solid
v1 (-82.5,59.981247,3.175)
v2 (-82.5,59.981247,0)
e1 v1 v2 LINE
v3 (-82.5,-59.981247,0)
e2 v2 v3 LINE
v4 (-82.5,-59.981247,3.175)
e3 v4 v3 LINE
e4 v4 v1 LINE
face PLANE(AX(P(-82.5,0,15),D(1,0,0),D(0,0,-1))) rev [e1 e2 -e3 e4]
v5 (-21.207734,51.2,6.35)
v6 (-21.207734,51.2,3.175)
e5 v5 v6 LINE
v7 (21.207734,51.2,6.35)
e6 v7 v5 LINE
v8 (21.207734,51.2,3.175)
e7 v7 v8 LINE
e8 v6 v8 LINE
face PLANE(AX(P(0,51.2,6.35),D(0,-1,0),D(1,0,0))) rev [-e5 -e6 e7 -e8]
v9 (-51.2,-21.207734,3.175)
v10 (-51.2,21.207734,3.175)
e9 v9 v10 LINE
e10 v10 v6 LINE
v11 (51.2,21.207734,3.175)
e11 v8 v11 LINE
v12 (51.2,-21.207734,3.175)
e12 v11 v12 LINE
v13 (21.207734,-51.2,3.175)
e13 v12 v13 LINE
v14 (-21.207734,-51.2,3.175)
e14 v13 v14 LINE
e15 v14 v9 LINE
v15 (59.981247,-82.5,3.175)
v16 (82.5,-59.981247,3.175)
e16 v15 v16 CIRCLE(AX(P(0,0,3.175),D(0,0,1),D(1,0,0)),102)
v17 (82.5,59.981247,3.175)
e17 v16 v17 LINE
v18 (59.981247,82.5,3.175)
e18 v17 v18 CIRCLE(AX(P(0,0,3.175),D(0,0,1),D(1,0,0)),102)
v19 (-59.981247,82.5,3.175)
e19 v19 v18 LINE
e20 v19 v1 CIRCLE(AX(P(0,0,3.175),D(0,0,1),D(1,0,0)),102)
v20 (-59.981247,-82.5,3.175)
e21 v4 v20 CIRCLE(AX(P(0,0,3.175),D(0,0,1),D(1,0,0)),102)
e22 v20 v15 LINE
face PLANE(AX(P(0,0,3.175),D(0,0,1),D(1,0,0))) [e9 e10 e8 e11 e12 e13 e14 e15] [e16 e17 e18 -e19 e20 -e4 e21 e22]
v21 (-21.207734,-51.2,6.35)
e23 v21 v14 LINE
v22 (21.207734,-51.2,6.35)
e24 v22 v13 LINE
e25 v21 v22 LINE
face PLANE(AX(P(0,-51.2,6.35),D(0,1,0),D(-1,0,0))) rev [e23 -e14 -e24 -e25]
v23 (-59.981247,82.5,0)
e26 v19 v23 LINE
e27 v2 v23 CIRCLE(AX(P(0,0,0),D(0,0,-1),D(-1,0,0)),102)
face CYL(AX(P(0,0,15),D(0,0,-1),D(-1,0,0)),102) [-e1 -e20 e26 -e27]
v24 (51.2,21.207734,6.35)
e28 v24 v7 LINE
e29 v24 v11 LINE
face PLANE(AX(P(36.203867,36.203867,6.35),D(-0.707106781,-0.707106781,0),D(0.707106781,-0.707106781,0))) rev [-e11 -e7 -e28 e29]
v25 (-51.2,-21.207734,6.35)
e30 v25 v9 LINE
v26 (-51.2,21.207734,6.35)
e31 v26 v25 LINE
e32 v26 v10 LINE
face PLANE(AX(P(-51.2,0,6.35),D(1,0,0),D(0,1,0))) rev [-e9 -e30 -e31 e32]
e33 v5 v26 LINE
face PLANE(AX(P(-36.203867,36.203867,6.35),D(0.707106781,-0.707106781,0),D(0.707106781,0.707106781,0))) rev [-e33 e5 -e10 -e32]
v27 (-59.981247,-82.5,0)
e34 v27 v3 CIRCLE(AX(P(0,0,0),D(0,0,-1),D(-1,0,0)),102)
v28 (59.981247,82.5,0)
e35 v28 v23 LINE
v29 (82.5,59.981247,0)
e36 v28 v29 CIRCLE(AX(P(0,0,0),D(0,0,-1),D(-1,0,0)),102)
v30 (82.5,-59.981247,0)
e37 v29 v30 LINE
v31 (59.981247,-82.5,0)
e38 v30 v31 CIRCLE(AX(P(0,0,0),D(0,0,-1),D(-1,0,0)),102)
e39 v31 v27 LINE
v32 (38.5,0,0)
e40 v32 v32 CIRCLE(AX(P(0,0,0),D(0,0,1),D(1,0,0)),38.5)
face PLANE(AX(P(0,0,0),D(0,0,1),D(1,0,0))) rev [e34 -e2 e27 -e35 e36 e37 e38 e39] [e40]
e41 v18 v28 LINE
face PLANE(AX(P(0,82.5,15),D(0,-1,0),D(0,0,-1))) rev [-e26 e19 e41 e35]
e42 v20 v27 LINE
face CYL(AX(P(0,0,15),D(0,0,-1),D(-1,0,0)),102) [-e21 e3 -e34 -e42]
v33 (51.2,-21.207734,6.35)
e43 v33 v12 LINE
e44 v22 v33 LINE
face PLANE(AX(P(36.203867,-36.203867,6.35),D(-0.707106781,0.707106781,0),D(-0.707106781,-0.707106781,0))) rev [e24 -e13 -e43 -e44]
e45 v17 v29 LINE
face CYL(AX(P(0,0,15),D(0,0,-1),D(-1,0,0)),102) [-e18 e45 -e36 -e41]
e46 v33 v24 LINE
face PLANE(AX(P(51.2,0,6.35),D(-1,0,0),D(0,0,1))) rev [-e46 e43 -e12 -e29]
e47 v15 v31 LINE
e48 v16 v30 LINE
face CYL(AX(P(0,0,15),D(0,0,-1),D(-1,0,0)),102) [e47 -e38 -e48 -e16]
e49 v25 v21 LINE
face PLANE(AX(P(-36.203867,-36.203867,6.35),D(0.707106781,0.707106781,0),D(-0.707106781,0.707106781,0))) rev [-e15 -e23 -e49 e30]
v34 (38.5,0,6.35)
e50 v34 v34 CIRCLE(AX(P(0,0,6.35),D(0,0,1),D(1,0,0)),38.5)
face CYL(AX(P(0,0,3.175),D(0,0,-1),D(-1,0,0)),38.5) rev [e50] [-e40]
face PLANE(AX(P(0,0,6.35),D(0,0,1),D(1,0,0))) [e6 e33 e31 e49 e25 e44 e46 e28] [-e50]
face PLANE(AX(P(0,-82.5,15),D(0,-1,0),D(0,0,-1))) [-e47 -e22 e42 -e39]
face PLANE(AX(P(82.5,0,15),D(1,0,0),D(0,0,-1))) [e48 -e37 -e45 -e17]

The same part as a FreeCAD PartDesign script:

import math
import FreeCAD as App
import Part
import Sketcher

doc = App.newDocument("Part")
body = doc.addObject("PartDesign::Body", "Body")

sketch1 = body.newObject("Sketcher::SketchObject", "Sketch")
sketch1.AttachmentSupport = (doc.getObject("XY_Plane"), [""])
sketch1.MapMode = "FlatFace"
sketch1.addGeometry(Part.LineSegment(App.Vector(-102, 102, 0), App.Vector(-102, -102, 0)), False)
sketch1.addGeometry(Part.LineSegment(App.Vector(-102, -102, 0), App.Vector(102, -102, 0)), False)
sketch1.addGeometry(Part.LineSegment(App.Vector(102, -102, 0), App.Vector(102, 102, 0)), False)
sketch1.addGeometry(Part.LineSegment(App.Vector(102, 102, 0), App.Vector(-102, 102, 0)), False)
sketch1.addGeometry(Part.LineSegment(App.Vector(21, 51, 0), App.Vector(51, 21, 0)), False)
sketch1.addGeometry(Part.LineSegment(App.Vector(51, 21, 0), App.Vector(51, -21, 0)), False)
sketch1.addGeometry(Part.LineSegment(App.Vector(51, -21, 0), App.Vector(21, -51, 0)), False)
sketch1.addGeometry(Part.LineSegment(App.Vector(21, -51, 0), App.Vector(-21, -51, 0)), False)
sketch1.addGeometry(Part.LineSegment(App.Vector(-21, -51, 0), App.Vector(-51, -21, 0)), False)
sketch1.addGeometry(Part.LineSegment(App.Vector(-51, -21, 0), App.Vector(-51, 21, 0)), False)
sketch1.addGeometry(Part.LineSegment(App.Vector(-51, 21, 0), App.Vector(-21, 51, 0)), False)
sketch1.addGeometry(Part.LineSegment(App.Vector(-21, 51, 0), App.Vector(21, 51, 0)), False)
sketch1.addConstraint(Sketcher.Constraint("Coincident", 0, 2, 1, 1))
sketch1.addConstraint(Sketcher.Constraint("Coincident", 1, 2, 2, 1))
sketch1.addConstraint(Sketcher.Constraint("Coincident", 2, 2, 3, 1))
sketch1.addConstraint(Sketcher.Constraint("Coincident", 3, 2, 0, 1))
sketch1.addConstraint(Sketcher.Constraint("Coincident", 4, 2, 5, 1))
sketch1.addConstraint(Sketcher.Constraint("Coincident", 5, 2, 6, 1))
sketch1.addConstraint(Sketcher.Constraint("Coincident", 6, 2, 7, 1))
sketch1.addConstraint(Sketcher.Constraint("Coincident", 7, 2, 8, 1))
sketch1.addConstraint(Sketcher.Constraint("Coincident", 8, 2, 9, 1))
sketch1.addConstraint(Sketcher.Constraint("Coincident", 9, 2, 10, 1))
sketch1.addConstraint(Sketcher.Constraint("Coincident", 10, 2, 11, 1))
sketch1.addConstraint(Sketcher.Constraint("Coincident", 11, 2, 4, 1))
sketch1.addConstraint(Sketcher.Constraint("Vertical", 0))
sketch1.addConstraint(Sketcher.Constraint("Horizontal", 1))
sketch1.addConstraint(Sketcher.Constraint("Vertical", 2))
sketch1.addConstraint(Sketcher.Constraint("Horizontal", 3))
sketch1.addConstraint(Sketcher.Constraint("Vertical", 5))
sketch1.addConstraint(Sketcher.Constraint("Horizontal", 7))
sketch1.addConstraint(Sketcher.Constraint("Vertical", 9))
sketch1.addConstraint(Sketcher.Constraint("Horizontal", 11))
sketch1.addConstraint(Sketcher.Constraint("Symmetric", 0, 2, 2, 2, -1, 1))
sketch1.addConstraint(Sketcher.Constraint("Symmetric", 4, 2, 8, 2, -1, 1))
sketch1.addConstraint(Sketcher.Constraint("Symmetric", 6, 2, 10, 2, -1, 1))
sketch1.addConstraint(Sketcher.Constraint("Perpendicular", 4, 6))
sketch1.addConstraint(Sketcher.Constraint("Perpendicular", 6, 8))
sketch1.addConstraint(Sketcher.Constraint("Perpendicular", 8, 10))
sketch1.addConstraint(Sketcher.Constraint("Horizontal", 5, 2, 8, 2))
sketch1.addConstraint(Sketcher.Constraint("Vertical", 7, 2, 10, 2))
sketch1.addConstraint(Sketcher.Constraint("Equal", 3, 0))
sketch1.addConstraint(Sketcher.Constraint("Equal", 11, 5))
sketch1.addConstraint(Sketcher.Constraint("DistanceX", -1, 1, 4, 2, 51.2))
sketch1.addConstraint(Sketcher.Constraint("DistanceX", 1, 1, 1, 2, 203.94771))
sketch1.addConstraint(Sketcher.Constraint("DistanceX", 7, 2, 7, 1, 42.415469))
pad1 = body.newObject("PartDesign::Pad", "Pad")
pad1.Profile = sketch1
pad1.Length = 3.175

sketch2 = body.newObject("Sketcher::SketchObject", "Sketch001")
sketch2.AttachmentSupport = (doc.getObject("XY_Plane"), [""])
sketch2.MapMode = "FlatFace"
sketch2.addGeometry(Part.LineSegment(App.Vector(51, -21, 0), App.Vector(51, 21, 0)), False)
sketch2.addGeometry(Part.LineSegment(App.Vector(51, 21, 0), App.Vector(21, 51, 0)), False)
sketch2.addGeometry(Part.LineSegment(App.Vector(21, 51, 0), App.Vector(-21, 51, 0)), False)
sketch2.addGeometry(Part.LineSegment(App.Vector(-21, 51, 0), App.Vector(-51, 21, 0)), False)
sketch2.addGeometry(Part.LineSegment(App.Vector(-51, 21, 0), App.Vector(-51, -21, 0)), False)
sketch2.addGeometry(Part.LineSegment(App.Vector(-51, -21, 0), App.Vector(-21, -51, 0)), False)
sketch2.addGeometry(Part.LineSegment(App.Vector(-21, -51, 0), App.Vector(21, -51, 0)), False)
sketch2.addGeometry(Part.LineSegment(App.Vector(21, -51, 0), App.Vector(51, -21, 0)), False)
sketch2.addGeometry(Part.Circle(App.Vector(0, 0, 0), App.Vector(0, 0, 1), 38), False)
sketch2.addConstraint(Sketcher.Constraint("Coincident", 0, 2, 1, 1))
sketch2.addConstraint(Sketcher.Constraint("Coincident", 1, 2, 2, 1))
sketch2.addConstraint(Sketcher.Constraint("Coincident", 2, 2, 3, 1))
sketch2.addConstraint(Sketcher.Constraint("Coincident", 3, 2, 4, 1))
sketch2.addConstraint(Sketcher.Constraint("Coincident", 4, 2, 5, 1))
sketch2.addConstraint(Sketcher.Constraint("Coincident", 5, 2, 6, 1))
sketch2.addConstraint(Sketcher.Constraint("Coincident", 6, 2, 7, 1))
sketch2.addConstraint(Sketcher.Constraint("Coincident", 7, 2, 0, 1))
sketch2.addConstraint(Sketcher.Constraint("Vertical", 0))
sketch2.addConstraint(Sketcher.Constraint("Horizontal", 2))
sketch2.addConstraint(Sketcher.Constraint("Vertical", 4))
sketch2.addConstraint(Sketcher.Constraint("Horizontal", 6))
sketch2.addConstraint(Sketcher.Constraint("Coincident", 8, 3, -1, 1))
sketch2.addConstraint(Sketcher.Constraint("Symmetric", 0, 2, 4, 2, -1, 1))
sketch2.addConstraint(Sketcher.Constraint("Symmetric", 1, 2, 5, 2, -1, 1))
sketch2.addConstraint(Sketcher.Constraint("Perpendicular", 1, 3))
sketch2.addConstraint(Sketcher.Constraint("Perpendicular", 5, 7))
sketch2.addConstraint(Sketcher.Constraint("Horizontal", 0, 2, 3, 2))
sketch2.addConstraint(Sketcher.Constraint("Horizontal", 4, 2, 7, 2))
sketch2.addConstraint(Sketcher.Constraint("Vertical", 2, 2, 5, 2))
sketch2.addConstraint(Sketcher.Constraint("Equal", 6, 0))
sketch2.addConstraint(Sketcher.Constraint("Diameter", 8, 77.0))
sketch2.addConstraint(Sketcher.Constraint("DistanceX", -1, 1, 0, 2, 51.2))
sketch2.addConstraint(Sketcher.Constraint("DistanceX", 2, 2, 2, 1, 42.415469))
pad2 = body.newObject("PartDesign::Pad", "Pad001")
pad2.Profile = sketch2
pad2.Length = 6.35

sketch3 = body.newObject("Sketcher::SketchObject", "Sketch002")
sketch3.AttachmentSupport = (doc.getObject("XY_Plane"), [""])
sketch3.MapMode = "FlatFace"
sketch3.addGeometry(Part.LineSegment(App.Vector(102, 102, 0), App.Vector(102, -102, 0)), False)
sketch3.addGeometry(Part.LineSegment(App.Vector(102, -102, 0), App.Vector(-102, -102, 0)), False)
sketch3.addGeometry(Part.LineSegment(App.Vector(-102, -102, 0), App.Vector(-102, 102, 0)), False)
sketch3.addGeometry(Part.LineSegment(App.Vector(-102, 102, 0), App.Vector(102, 102, 0)), False)
sketch3.addGeometry(Part.ArcOfCircle(Part.Circle(App.Vector(0, 0, 0), App.Vector(0, 0, 1), 102), math.radians(36.02), math.radians(53.98)), False)
sketch3.addGeometry(Part.LineSegment(App.Vector(60, 82, 0), App.Vector(-60, 82, 0)), False)
sketch3.addGeometry(Part.ArcOfCircle(Part.Circle(App.Vector(0, 0, 0), App.Vector(0, 0, 1), 102), math.radians(126.02), math.radians(143.98)), False)
sketch3.addGeometry(Part.LineSegment(App.Vector(-82, 60, 0), App.Vector(-82, -60, 0)), False)
sketch3.addGeometry(Part.ArcOfCircle(Part.Circle(App.Vector(0, 0, 0), App.Vector(0, 0, 1), 102), math.radians(-143.98), math.radians(-126.02)), False)
sketch3.addGeometry(Part.LineSegment(App.Vector(-60, -82, 0), App.Vector(60, -82, 0)), False)
sketch3.addGeometry(Part.ArcOfCircle(Part.Circle(App.Vector(0, 0, 0), App.Vector(0, 0, 1), 102), math.radians(-53.98), math.radians(-36.02)), False)
sketch3.addGeometry(Part.LineSegment(App.Vector(82, -60, 0), App.Vector(82, 60, 0)), False)
sketch3.addConstraint(Sketcher.Constraint("Coincident", 0, 2, 1, 1))
sketch3.addConstraint(Sketcher.Constraint("Coincident", 1, 2, 2, 1))
sketch3.addConstraint(Sketcher.Constraint("Coincident", 2, 2, 3, 1))
sketch3.addConstraint(Sketcher.Constraint("Coincident", 3, 2, 0, 1))
sketch3.addConstraint(Sketcher.Constraint("Coincident", 4, 2, 5, 1))
sketch3.addConstraint(Sketcher.Constraint("Coincident", 5, 2, 6, 1))
sketch3.addConstraint(Sketcher.Constraint("Coincident", 6, 2, 7, 1))
sketch3.addConstraint(Sketcher.Constraint("Coincident", 7, 2, 8, 1))
sketch3.addConstraint(Sketcher.Constraint("Coincident", 8, 2, 9, 1))
sketch3.addConstraint(Sketcher.Constraint("Coincident", 9, 2, 10, 1))
sketch3.addConstraint(Sketcher.Constraint("Coincident", 10, 2, 11, 1))
sketch3.addConstraint(Sketcher.Constraint("Coincident", 11, 2, 4, 1))
sketch3.addConstraint(Sketcher.Constraint("Vertical", 0))
sketch3.addConstraint(Sketcher.Constraint("Horizontal", 1))
sketch3.addConstraint(Sketcher.Constraint("Vertical", 2))
sketch3.addConstraint(Sketcher.Constraint("Horizontal", 3))
sketch3.addConstraint(Sketcher.Constraint("Horizontal", 5))
sketch3.addConstraint(Sketcher.Constraint("Vertical", 7))
sketch3.addConstraint(Sketcher.Constraint("Horizontal", 9))
sketch3.addConstraint(Sketcher.Constraint("Vertical", 11))
sketch3.addConstraint(Sketcher.Constraint("Coincident", 4, 3, -1, 1))
sketch3.addConstraint(Sketcher.Constraint("Coincident", 6, 3, -1, 1))
sketch3.addConstraint(Sketcher.Constraint("Coincident", 8, 3, -1, 1))
sketch3.addConstraint(Sketcher.Constraint("Coincident", 10, 3, -1, 1))
sketch3.addConstraint(Sketcher.Constraint("Equal", 4, 6))
sketch3.addConstraint(Sketcher.Constraint("Equal", 6, 8))
sketch3.addConstraint(Sketcher.Constraint("Equal", 8, 10))
sketch3.addConstraint(Sketcher.Constraint("Symmetric", 0, 2, 2, 2, -1, 1))
sketch3.addConstraint(Sketcher.Constraint("Horizontal", 7, 2, 10, 2))
sketch3.addConstraint(Sketcher.Constraint("Vertical", 5, 2, 8, 2))
sketch3.addConstraint(Sketcher.Constraint("Equal", 3, 0))
sketch3.addConstraint(Sketcher.Constraint("Equal", 9, 7))
sketch3.addConstraint(Sketcher.Constraint("Radius", 4, 102.0))
sketch3.addConstraint(Sketcher.Constraint("DistanceY", -1, 1, 4, 2, 82.5))
sketch3.addConstraint(Sketcher.Constraint("DistanceX", 1, 2, 1, 1, 203.94771))
pocket1 = body.newObject("PartDesign::Pocket", "Pocket")
pocket1.Profile = sketch3
pocket1.Length = 15
pocket1.Reversed = True

doc.recompute()
